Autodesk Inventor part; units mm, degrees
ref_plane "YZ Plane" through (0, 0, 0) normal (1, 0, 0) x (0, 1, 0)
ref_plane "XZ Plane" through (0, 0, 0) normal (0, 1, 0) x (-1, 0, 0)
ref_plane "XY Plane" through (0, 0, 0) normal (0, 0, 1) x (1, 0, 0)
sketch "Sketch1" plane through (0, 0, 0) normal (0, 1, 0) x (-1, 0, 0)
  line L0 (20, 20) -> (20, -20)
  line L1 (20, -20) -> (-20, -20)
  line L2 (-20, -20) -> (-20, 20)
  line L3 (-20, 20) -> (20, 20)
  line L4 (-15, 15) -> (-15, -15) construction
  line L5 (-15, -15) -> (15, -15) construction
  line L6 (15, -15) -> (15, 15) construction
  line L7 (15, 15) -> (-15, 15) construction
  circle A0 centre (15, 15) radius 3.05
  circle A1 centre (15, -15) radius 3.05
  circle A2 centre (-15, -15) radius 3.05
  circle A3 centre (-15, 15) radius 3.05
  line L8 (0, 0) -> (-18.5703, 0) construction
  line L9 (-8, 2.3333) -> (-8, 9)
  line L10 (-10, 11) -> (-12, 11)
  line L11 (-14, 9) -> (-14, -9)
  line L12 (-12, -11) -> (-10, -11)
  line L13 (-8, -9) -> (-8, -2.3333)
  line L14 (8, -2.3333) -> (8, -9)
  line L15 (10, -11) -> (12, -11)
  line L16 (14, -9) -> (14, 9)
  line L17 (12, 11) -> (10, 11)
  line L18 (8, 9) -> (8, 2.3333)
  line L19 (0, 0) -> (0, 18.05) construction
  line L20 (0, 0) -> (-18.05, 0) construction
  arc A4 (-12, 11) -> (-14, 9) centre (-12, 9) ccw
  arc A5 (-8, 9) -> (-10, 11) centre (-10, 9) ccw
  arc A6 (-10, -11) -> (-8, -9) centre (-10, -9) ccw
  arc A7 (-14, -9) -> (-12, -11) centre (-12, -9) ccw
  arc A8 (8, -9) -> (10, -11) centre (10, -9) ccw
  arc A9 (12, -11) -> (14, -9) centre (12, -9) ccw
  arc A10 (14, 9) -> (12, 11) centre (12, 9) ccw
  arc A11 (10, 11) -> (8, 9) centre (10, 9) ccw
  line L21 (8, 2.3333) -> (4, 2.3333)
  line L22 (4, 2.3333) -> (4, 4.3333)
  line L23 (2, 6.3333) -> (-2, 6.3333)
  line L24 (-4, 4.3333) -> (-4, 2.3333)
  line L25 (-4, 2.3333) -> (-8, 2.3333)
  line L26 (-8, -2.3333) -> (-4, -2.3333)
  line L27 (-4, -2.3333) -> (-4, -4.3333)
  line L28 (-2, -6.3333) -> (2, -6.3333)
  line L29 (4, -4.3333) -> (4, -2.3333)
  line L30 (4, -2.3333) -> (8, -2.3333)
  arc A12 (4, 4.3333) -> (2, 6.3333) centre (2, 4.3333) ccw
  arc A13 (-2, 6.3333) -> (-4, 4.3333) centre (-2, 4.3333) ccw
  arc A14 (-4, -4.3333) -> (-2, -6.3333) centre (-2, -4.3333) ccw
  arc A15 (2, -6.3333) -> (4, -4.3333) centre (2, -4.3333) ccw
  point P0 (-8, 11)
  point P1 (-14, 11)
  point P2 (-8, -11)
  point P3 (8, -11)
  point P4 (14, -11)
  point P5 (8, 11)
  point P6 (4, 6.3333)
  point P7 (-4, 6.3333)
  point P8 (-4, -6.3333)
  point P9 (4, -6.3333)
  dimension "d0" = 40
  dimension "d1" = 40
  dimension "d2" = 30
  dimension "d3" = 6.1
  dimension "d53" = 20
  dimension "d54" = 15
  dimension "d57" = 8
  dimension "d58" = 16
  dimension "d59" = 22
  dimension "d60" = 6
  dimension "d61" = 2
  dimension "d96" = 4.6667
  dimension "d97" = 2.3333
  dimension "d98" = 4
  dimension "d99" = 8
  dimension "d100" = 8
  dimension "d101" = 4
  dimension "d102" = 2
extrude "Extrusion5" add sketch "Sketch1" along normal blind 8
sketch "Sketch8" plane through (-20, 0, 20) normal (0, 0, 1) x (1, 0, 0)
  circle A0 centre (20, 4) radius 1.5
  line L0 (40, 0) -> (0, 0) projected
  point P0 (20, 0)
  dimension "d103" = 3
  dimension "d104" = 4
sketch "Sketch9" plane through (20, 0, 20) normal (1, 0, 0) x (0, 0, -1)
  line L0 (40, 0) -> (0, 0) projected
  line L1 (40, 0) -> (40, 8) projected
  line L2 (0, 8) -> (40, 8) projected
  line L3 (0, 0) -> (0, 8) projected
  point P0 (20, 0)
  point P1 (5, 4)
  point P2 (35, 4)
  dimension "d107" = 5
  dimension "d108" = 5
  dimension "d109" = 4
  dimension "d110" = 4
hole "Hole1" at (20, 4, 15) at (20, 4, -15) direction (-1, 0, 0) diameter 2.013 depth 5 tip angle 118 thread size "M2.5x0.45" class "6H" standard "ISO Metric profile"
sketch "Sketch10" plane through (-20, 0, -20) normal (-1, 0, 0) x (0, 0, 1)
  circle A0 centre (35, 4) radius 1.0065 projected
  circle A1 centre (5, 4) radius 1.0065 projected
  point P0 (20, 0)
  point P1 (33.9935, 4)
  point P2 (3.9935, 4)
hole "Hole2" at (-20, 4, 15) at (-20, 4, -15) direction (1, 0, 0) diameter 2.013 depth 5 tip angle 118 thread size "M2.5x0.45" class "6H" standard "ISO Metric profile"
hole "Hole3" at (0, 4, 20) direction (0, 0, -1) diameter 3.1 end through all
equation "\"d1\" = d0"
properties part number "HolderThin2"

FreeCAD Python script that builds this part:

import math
import FreeCAD as App
import Part
import Sketcher
from FreeCAD import Vector

doc = App.newDocument("Part")
params = doc.addObject("Spreadsheet::Sheet", "Params")
for row, (alias, value) in enumerate([
    ("sketch1_radius", "2 mm"),
    ("sketch1_diameter", "6.1 mm"),
    ("sketch1_width", "40 mm"),
    ("sketch1_width2", "4 mm"),
    ("sketch1_width3", "2 mm"),
    ("pad1_length", "8 mm"),
    ("hole_diameter", "2.013 mm"),
    ("hole_depth", "5 mm"),
    ("hole2_diameter", "2.013 mm"),
    ("hole2_depth", "5 mm"),
    ("sketch4_diameter", "3.1 mm"),
    ("hole3_diameter", "3.1 mm"),
], start=1):
    params.set(f"A{row}", alias)
    params.set(f"B{row}", "=" + value)
    params.setAlias(f"B{row}", alias)

body = doc.addObject("PartDesign::Body", "Body")

sketch1 = body.newObject("Sketcher::SketchObject", "Sketch")
sketch1.AttachmentSupport = (doc.getObject("XZ_Plane"), [""])
sketch1.MapMode = "FlatFace"
sketch1.addGeometry([
    Part.LineSegment(Vector(-20, -20, 0), Vector(-20, 20, 0)),
    Part.LineSegment(Vector(-20, 20, 0), Vector(20, 20, 0)),
    Part.LineSegment(Vector(20, 20, 0), Vector(20, -20, 0)),
    Part.LineSegment(Vector(20, -20, 0), Vector(-20, -20, 0)),
    Part.Circle(Vector(15, -15, 0), Vector(0, 0, 1), 3.05),
    Part.Circle(Vector(-15, -15, 0), Vector(0, 0, 1), 3.05),
    Part.Circle(Vector(15, 15, 0), Vector(0, 0, 1), 3.05),
    Part.LineSegment(Vector(8, 9, 0), Vector(8, 2.3333, 0)),
    Part.LineSegment(Vector(8, 2.3333, 0), Vector(4, 2.3333, 0)),
    Part.LineSegment(Vector(4, 2.3333, 0), Vector(4, 4.3333, 0)),
    Part.ArcOfCircle(Part.Circle(Vector(2, 4.3333, 0), Vector(0, 0, 1), 2), math.radians(0), math.radians(90)),
    Part.LineSegment(Vector(2, 6.3333, 0), Vector(-2, 6.3333, 0)),
    Part.ArcOfCircle(Part.Circle(Vector(-2, 4.3333, 0), Vector(0, 0, 1), 2), math.radians(90), math.radians(180)),
    Part.LineSegment(Vector(-4, 4.3333, 0), Vector(-4, 2.3333, 0)),
    Part.LineSegment(Vector(-4, 2.3333, 0), Vector(-8, 2.3333, 0)),
    Part.LineSegment(Vector(-8, 2.3333, 0), Vector(-8, 9, 0)),
    Part.ArcOfCircle(Part.Circle(Vector(-10, 9, 0), Vector(0, 0, 1), 2), math.radians(0), math.radians(90)),
    Part.LineSegment(Vector(-10, 11, 0), Vector(-12, 11, 0)),
    Part.ArcOfCircle(Part.Circle(Vector(-12, 9, 0), Vector(0, 0, 1), 2), math.radians(90), math.radians(180)),
    Part.LineSegment(Vector(-14, 9, 0), Vector(-14, -9, 0)),
    Part.ArcOfCircle(Part.Circle(Vector(-12, -9, 0), Vector(0, 0, 1), 2), math.radians(180), math.radians(270)),
    Part.LineSegment(Vector(-12, -11, 0), Vector(-10, -11, 0)),
    Part.ArcOfCircle(Part.Circle(Vector(-10, -9, 0), Vector(0, 0, 1), 2), math.radians(-90), math.radians(0)),
    Part.LineSegment(Vector(-8, -9, 0), Vector(-8, -2.3333, 0)),
    Part.LineSegment(Vector(-8, -2.3333, 0), Vector(-4, -2.3333, 0)),
    Part.LineSegment(Vector(-4, -2.3333, 0), Vector(-4, -4.3333, 0)),
    Part.ArcOfCircle(Part.Circle(Vector(-2, -4.3333, 0), Vector(0, 0, 1), 2), math.radians(180), math.radians(270)),
    Part.LineSegment(Vector(-2, -6.3333, 0), Vector(2, -6.3333, 0)),
    Part.ArcOfCircle(Part.Circle(Vector(2, -4.3333, 0), Vector(0, 0, 1), 2), math.radians(-90), math.radians(0)),
    Part.LineSegment(Vector(4, -4.3333, 0), Vector(4, -2.3333, 0)),
    Part.LineSegment(Vector(4, -2.3333, 0), Vector(8, -2.3333, 0)),
    Part.LineSegment(Vector(8, -2.3333, 0), Vector(8, -9, 0)),
    Part.ArcOfCircle(Part.Circle(Vector(10, -9, 0), Vector(0, 0, 1), 2), math.radians(180), math.radians(270)),
    Part.LineSegment(Vector(10, -11, 0), Vector(12, -11, 0)),
    Part.ArcOfCircle(Part.Circle(Vector(12, -9, 0), Vector(0, 0, 1), 2), math.radians(-90), math.radians(0)),
    Part.LineSegment(Vector(14, -9, 0), Vector(14, 9, 0)),
    Part.ArcOfCircle(Part.Circle(Vector(12, 9, 0), Vector(0, 0, 1), 2), math.radians(0), math.radians(90)),
    Part.LineSegment(Vector(12, 11, 0), Vector(10, 11, 0)),
    Part.ArcOfCircle(Part.Circle(Vector(10, 9, 0), Vector(0, 0, 1), 2), math.radians(90), math.radians(180)),
    Part.Circle(Vector(-15, 15, 0), Vector(0, 0, 1), 3.05),
], False)
sketch1.addConstraint([
    Sketcher.Constraint("Coincident", 0, 2, 1, 1),
    Sketcher.Constraint("Coincident", 1, 2, 2, 1),
    Sketcher.Constraint("Coincident", 2, 2, 3, 1),
    Sketcher.Constraint("Coincident", 3, 2, 0, 1),
    Sketcher.Constraint("Coincident", 7, 2, 8, 1),
    Sketcher.Constraint("Coincident", 8, 2, 9, 1),
    Sketcher.Constraint("Tangent", 9, 2, 10, 1),
    Sketcher.Constraint("Tangent", 10, 2, 11, 1),
    Sketcher.Constraint("Tangent", 11, 2, 12, 1),
    Sketcher.Constraint("Tangent", 12, 2, 13, 1),
    Sketcher.Constraint("Coincident", 13, 2, 14, 1),
    Sketcher.Constraint("Coincident", 14, 2, 15, 1),
    Sketcher.Constraint("Tangent", 15, 2, 16, 1),
    Sketcher.Constraint("Tangent", 16, 2, 17, 1),
    Sketcher.Constraint("Tangent", 17, 2, 18, 1),
    Sketcher.Constraint("Tangent", 18, 2, 19, 1),
    Sketcher.Constraint("Tangent", 19, 2, 20, 1),
    Sketcher.Constraint("Tangent", 20, 2, 21, 1),
    Sketcher.Constraint("Tangent", 21, 2, 22, 1),
    Sketcher.Constraint("Tangent", 22, 2, 23, 1),
    Sketcher.Constraint("Coincident", 23, 2, 24, 1),
    Sketcher.Constraint("Coincident", 24, 2, 25, 1),
    Sketcher.Constraint("Tangent", 25, 2, 26, 1),
    Sketcher.Constraint("Tangent", 26, 2, 27, 1),
    Sketcher.Constraint("Tangent", 27, 2, 28, 1),
    Sketcher.Constraint("Tangent", 28, 2, 29, 1),
    Sketcher.Constraint("Coincident", 29, 2, 30, 1),
    Sketcher.Constraint("Coincident", 30, 2, 31, 1),
    Sketcher.Constraint("Tangent", 31, 2, 32, 1),
    Sketcher.Constraint("Tangent", 32, 2, 33, 1),
    Sketcher.Constraint("Tangent", 33, 2, 34, 1),
    Sketcher.Constraint("Tangent", 34, 2, 35, 1),
    Sketcher.Constraint("Tangent", 35, 2, 36, 1),
    Sketcher.Constraint("Tangent", 36, 2, 37, 1),
    Sketcher.Constraint("Tangent", 37, 2, 38, 1),
    Sketcher.Constraint("Tangent", 38, 2, 7, 1),
    Sketcher.Constraint("Vertical", 0),
    Sketcher.Constraint("Horizontal", 1),
    Sketcher.Constraint("Vertical", 2),
    Sketcher.Constraint("Horizontal", 3),
    Sketcher.Constraint("Vertical", 7),
    Sketcher.Constraint("Horizontal", 8),
    Sketcher.Constraint("Vertical", 9),
    Sketcher.Constraint("Horizontal", 11),
    Sketcher.Constraint("Vertical", 13),
    Sketcher.Constraint("Horizontal", 14),
    Sketcher.Constraint("Vertical", 15),
    Sketcher.Constraint("Horizontal", 17),
    Sketcher.Constraint("Vertical", 19),
    Sketcher.Constraint("Horizontal", 21),
    Sketcher.Constraint("Vertical", 23),
    Sketcher.Constraint("Horizontal", 24),
    Sketcher.Constraint("Vertical", 25),
    Sketcher.Constraint("Horizontal", 27),
    Sketcher.Constraint("Vertical", 29),
    Sketcher.Constraint("Horizontal", 30),
    Sketcher.Constraint("Vertical", 31),
    Sketcher.Constraint("Horizontal", 33),
    Sketcher.Constraint("Vertical", 35),
    Sketcher.Constraint("Horizontal", 37),
    Sketcher.Constraint("Equal", 4, 5),
    Sketcher.Constraint("Equal", 5, 6),
    Sketcher.Constraint("Equal", 10, 12),
    Sketcher.Constraint("Equal", 12, 16),
    Sketcher.Constraint("Equal", 16, 18),
    Sketcher.Constraint("Equal", 18, 20),
    Sketcher.Constraint("Equal", 20, 22),
    Sketcher.Constraint("Equal", 22, 26),
    Sketcher.Constraint("Equal", 26, 28),
    Sketcher.Constraint("Equal", 28, 32),
    Sketcher.Constraint("Equal", 32, 34),
    Sketcher.Constraint("Equal", 34, 36),
    Sketcher.Constraint("Equal", 36, 38),
    Sketcher.Constraint("Equal", 6, 39),
    Sketcher.Constraint("Symmetric", 5, 3, 6, 3, -1, 1),
    Sketcher.Constraint("Symmetric", 10, 3, 26, 3, -1, 1),
    Sketcher.Constraint("Symmetric", 16, 3, 32, 3, -1, 1),
    Sketcher.Constraint("Symmetric", 20, 3, 36, 3, -1, 1),
    Sketcher.Constraint("Symmetric", 4, 3, 39, 3, -1, 1),
    Sketcher.Constraint("Symmetric", 0, 2, 2, 2, -1, 1),
    Sketcher.Constraint("Symmetric", 7, 2, 23, 2, -1, 1),
    Sketcher.Constraint("Symmetric", 13, 2, 29, 2, -1, 1),
    Sketcher.Constraint("Symmetric", 4, 3, 5, 3, -2),
    Sketcher.Constraint("Symmetric", 22, 3, 32, 3, -2),
    Sketcher.Constraint("Symmetric", 8, 2, 13, 2, -2),
    Sketcher.Constraint("Equal", 8, 11),
    Sketcher.Constraint("Equal", 3, 0),
    Sketcher.Constraint("Equal", 37, 9),
    Sketcher.Constraint("Radius", 10, 2.0),
    Sketcher.Constraint("Diameter", 4, 6.1),
    Sketcher.Constraint("DistanceX", 1, 1, 1, 2, 40.0),
    Sketcher.Constraint("DistanceX", 8, 2, 8, 1, 4.0),
    Sketcher.Constraint("DistanceX", 17, 2, 17, 1, 2.0),
    Sketcher.Constraint("DistanceX", -1, 1, 4, 3, 15.0),
    Sketcher.Constraint("DistanceY", 4, 3, -1, 1, 15.0),
    Sketcher.Constraint("DistanceY", 16, 3, 6, 3, 6.0),
    Sketcher.Constraint("DistanceY", -1, 1, 7, 2, 2.3333),
])
sketch1.setExpression("Constraints[88]", "Params.sketch1_radius")
sketch1.setExpression("Constraints[89]", "Params.sketch1_diameter")
sketch1.setExpression("Constraints[90]", "Params.sketch1_width")
sketch1.setExpression("Constraints[91]", "Params.sketch1_width2")
sketch1.setExpression("Constraints[92]", "Params.sketch1_width3")
pad1 = body.newObject("PartDesign::Pad", "Pad")
pad1.Profile = sketch1
pad1.setExpression("Length", "Params.pad1_length")
pad1.Reversed = True

sketch2 = body.newObject("Sketcher::SketchObject", "Sketch001")
sketch2.AttachmentSupport = (doc.getObject("YZ_Plane"), [""])
sketch2.MapMode = "FlatFace"
sketch2.AttachmentOffset = App.Placement(Vector(0, 0, 20), App.Rotation())
sketch2.addGeometry([
    Part.Circle(Vector(4, 15, 0), Vector(0, 0, 1), 1.0065),
    Part.Circle(Vector(4, -15, 0), Vector(0, 0, 1), 1.0065),
], False)
sketch2.addConstraint([
    Sketcher.Constraint("Equal", 0, 1),
    Sketcher.Constraint("Symmetric", 0, 3, 1, 3, -1),
    Sketcher.Constraint("Diameter", 0, 2.013),
    Sketcher.Constraint("DistanceX", -1, 1, 0, 3, 4.0),
    Sketcher.Constraint("DistanceY", -1, 1, 0, 3, 15.0),
])
doc.recompute()
hole = body.newObject("PartDesign::Hole", "Hole")
hole.Profile = sketch2
hole.ThreadType = "None"
hole.setExpression("Diameter", "Params.hole_diameter")
hole.DepthType = "Dimension"
hole.setExpression("Depth", "Params.hole_depth")
hole.DrillPoint = "Angled"
hole.DrillPointAngle = 118

sketch3 = body.newObject("Sketcher::SketchObject", "Sketch002")
sketch3.AttachmentSupport = (doc.getObject("YZ_Plane"), [""])
sketch3.MapMode = "FlatFace"
sketch3.AttachmentOffset = App.Placement(Vector(0, 0, -20), App.Rotation())
sketch3.addGeometry([
    Part.Circle(Vector(4, 15, 0), Vector(0, 0, 1), 1.0065),
    Part.Circle(Vector(4, -15, 0), Vector(0, 0, 1), 1.0065),
], False)
sketch3.addConstraint([
    Sketcher.Constraint("Equal", 0, 1),
    Sketcher.Constraint("Symmetric", 0, 3, 1, 3, -1),
    Sketcher.Constraint("Diameter", 0, 2.013),
    Sketcher.Constraint("DistanceX", -1, 1, 0, 3, 4.0),
    Sketcher.Constraint("DistanceY", -1, 1, 0, 3, 15.0),
])
doc.recompute()
hole2 = body.newObject("PartDesign::Hole", "Hole001")
hole2.Profile = sketch3
hole2.ThreadType = "None"
hole2.setExpression("Diameter", "Params.hole2_diameter")
hole2.DepthType = "Dimension"
hole2.setExpression("Depth", "Params.hole2_depth")
hole2.DrillPoint = "Angled"
hole2.DrillPointAngle = 118
hole2.Reversed = True

sketch4 = body.newObject("Sketcher::SketchObject", "Sketch003")
sketch4.AttachmentSupport = (doc.getObject("XY_Plane"), [""])
sketch4.MapMode = "FlatFace"
sketch4.AttachmentOffset = App.Placement(Vector(0, 0, 20), App.Rotation())
sketch4.addGeometry(Part.Circle(Vector(0, 4, 0), Vector(0, 0, 1), 1.55), False)
sketch4.addConstraint([
    Sketcher.Constraint("PointOnObject", 0, 3, -2),
    Sketcher.Constraint("Diameter", 0, 3.1),
    Sketcher.Constraint("DistanceY", -1, 1, 0, 3, 4.0),
])
sketch4.setExpression("Constraints[1]", "Params.sketch4_diameter")
doc.recompute()
hole3 = body.newObject("PartDesign::Hole", "Hole002")
hole3.Profile = sketch4
hole3.ThreadType = "None"
hole3.setExpression("Diameter", "Params.hole3_diameter")
hole3.DepthType = "ThroughAll"

doc.recompute()
